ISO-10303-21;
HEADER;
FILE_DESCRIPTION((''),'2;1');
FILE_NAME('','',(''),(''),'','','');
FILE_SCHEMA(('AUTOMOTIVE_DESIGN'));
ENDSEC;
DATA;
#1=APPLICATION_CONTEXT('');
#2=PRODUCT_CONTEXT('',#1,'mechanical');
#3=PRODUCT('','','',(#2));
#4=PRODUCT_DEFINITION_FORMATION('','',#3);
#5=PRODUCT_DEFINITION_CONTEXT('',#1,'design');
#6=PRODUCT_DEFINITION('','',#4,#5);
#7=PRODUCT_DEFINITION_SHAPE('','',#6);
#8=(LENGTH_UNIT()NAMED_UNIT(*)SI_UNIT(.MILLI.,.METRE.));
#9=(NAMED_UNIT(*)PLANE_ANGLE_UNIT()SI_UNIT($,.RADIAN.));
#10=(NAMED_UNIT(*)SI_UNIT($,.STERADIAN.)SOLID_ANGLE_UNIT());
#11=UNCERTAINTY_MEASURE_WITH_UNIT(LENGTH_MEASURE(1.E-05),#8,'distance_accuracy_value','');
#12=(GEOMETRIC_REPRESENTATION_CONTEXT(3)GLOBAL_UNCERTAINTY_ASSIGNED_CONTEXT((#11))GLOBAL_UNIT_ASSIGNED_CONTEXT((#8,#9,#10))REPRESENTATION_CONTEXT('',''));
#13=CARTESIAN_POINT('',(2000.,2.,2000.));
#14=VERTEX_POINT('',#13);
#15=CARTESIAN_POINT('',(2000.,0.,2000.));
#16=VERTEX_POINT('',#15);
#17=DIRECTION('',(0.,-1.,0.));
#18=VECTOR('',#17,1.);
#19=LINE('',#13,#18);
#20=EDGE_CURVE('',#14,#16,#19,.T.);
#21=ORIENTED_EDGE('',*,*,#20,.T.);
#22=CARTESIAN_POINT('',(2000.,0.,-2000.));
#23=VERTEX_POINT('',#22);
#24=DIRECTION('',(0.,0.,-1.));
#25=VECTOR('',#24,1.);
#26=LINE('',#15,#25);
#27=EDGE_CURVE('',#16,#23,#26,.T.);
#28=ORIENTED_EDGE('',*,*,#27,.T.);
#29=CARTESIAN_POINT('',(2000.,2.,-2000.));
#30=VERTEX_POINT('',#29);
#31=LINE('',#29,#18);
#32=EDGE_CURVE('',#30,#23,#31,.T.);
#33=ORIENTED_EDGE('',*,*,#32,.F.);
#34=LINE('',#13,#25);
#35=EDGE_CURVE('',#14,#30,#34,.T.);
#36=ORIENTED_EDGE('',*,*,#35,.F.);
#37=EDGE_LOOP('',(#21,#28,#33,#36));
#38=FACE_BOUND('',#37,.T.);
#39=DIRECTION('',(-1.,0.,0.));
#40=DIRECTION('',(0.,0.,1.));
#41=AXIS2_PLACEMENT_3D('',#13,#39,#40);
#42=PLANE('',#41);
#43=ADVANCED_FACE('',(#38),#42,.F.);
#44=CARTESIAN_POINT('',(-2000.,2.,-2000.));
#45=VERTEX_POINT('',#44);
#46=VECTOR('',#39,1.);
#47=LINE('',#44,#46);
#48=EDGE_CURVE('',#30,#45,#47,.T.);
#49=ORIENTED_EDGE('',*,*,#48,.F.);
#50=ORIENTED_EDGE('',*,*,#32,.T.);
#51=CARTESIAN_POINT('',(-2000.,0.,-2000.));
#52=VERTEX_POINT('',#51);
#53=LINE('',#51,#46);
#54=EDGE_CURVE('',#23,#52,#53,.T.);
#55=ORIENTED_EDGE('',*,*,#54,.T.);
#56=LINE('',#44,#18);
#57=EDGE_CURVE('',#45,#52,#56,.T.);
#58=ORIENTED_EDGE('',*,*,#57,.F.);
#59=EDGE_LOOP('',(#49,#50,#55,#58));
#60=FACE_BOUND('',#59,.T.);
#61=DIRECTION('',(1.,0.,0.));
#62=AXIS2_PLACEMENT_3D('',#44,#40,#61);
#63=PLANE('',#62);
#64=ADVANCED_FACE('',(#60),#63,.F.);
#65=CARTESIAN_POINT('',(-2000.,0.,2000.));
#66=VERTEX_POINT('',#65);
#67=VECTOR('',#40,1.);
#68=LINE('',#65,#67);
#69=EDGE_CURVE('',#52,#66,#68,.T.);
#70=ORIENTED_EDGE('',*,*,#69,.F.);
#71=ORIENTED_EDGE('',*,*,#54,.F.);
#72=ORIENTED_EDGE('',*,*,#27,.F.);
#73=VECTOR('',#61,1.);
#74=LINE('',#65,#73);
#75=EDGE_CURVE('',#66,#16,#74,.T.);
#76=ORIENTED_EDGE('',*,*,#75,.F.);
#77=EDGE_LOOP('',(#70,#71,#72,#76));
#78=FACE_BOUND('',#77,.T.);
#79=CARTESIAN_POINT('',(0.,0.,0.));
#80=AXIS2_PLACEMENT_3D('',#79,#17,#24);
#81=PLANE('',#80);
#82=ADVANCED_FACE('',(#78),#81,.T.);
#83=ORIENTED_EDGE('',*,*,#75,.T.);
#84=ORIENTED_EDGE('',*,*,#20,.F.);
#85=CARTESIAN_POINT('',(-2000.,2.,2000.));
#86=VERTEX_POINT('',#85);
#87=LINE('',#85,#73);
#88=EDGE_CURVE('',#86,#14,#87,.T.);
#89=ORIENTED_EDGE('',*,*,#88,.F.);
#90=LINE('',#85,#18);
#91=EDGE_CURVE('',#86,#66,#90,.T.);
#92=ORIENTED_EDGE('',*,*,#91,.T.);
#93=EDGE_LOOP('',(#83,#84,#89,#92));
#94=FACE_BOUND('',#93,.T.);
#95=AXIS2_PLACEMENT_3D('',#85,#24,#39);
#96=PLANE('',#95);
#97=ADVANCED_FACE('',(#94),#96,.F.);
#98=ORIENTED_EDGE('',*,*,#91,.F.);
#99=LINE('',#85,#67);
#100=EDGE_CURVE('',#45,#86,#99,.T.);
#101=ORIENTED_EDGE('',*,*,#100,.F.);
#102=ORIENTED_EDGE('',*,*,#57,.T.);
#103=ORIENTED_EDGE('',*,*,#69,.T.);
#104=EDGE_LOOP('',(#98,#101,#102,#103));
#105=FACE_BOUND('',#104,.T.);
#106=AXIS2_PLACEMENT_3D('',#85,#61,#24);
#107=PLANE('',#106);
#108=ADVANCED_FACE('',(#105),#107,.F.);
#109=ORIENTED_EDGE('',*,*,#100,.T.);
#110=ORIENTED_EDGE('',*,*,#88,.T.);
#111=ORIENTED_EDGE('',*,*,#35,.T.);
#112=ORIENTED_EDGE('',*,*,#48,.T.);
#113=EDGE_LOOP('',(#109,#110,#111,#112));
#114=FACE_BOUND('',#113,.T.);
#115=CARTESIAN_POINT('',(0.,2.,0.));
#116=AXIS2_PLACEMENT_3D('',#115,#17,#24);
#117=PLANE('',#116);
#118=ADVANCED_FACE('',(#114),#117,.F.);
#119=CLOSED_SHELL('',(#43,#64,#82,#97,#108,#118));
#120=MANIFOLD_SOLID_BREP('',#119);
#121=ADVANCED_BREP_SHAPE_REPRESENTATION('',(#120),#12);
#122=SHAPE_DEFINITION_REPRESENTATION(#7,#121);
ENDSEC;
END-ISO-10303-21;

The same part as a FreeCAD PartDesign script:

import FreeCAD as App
import Part
import Sketcher
from FreeCAD import Vector

doc = App.newDocument("Part")
params = doc.addObject("Spreadsheet::Sheet", "Params")
for row, (alias, value) in enumerate([
    ("sketch1_width", "4000 mm"),
    ("pad1_length", "2 mm"),
], start=1):
    params.set(f"A{row}", alias)
    params.set(f"B{row}", "=" + value)
    params.setAlias(f"B{row}", alias)

body = doc.addObject("PartDesign::Body", "Body")

# Sketch on XZ plane
sketch1 = body.newObject("Sketcher::SketchObject", "Sketch")
sketch1.AttachmentSupport = (doc.getObject("XZ_Plane"), [""])
sketch1.MapMode = "FlatFace"
sketch1.addGeometry([
    Part.LineSegment(Vector(-2000, -2000, 0), Vector(-2000, 2000, 0)),
    Part.LineSegment(Vector(-2000, 2000, 0), Vector(2000, 2000, 0)),
    Part.LineSegment(Vector(2000, 2000, 0), Vector(2000, -2000, 0)),
    Part.LineSegment(Vector(2000, -2000, 0), Vector(-2000, -2000, 0)),
], False)
sketch1.addConstraint([
    Sketcher.Constraint("Coincident", 0, 2, 1, 1),
    Sketcher.Constraint("Coincident", 1, 2, 2, 1),
    Sketcher.Constraint("Coincident", 2, 2, 3, 1),
    Sketcher.Constraint("Coincident", 3, 2, 0, 1),
    Sketcher.Constraint("Vertical", 0),
    Sketcher.Constraint("Horizontal", 1),
    Sketcher.Constraint("Vertical", 2),
    Sketcher.Constraint("Horizontal", 3),
    Sketcher.Constraint("Symmetric", 0, 2, 2, 2, -1, 1),
    Sketcher.Constraint("Equal", 3, 0),
    Sketcher.Constraint("DistanceX", 1, 1, 1, 2, 4000.0),
])
sketch1.setExpression("Constraints[10]", "Params.sketch1_width")
pad1 = body.newObject("PartDesign::Pad", "Pad")
pad1.Profile = sketch1
pad1.setExpression("Length", "Params.pad1_length")
pad1.Reversed = True

doc.recompute()
